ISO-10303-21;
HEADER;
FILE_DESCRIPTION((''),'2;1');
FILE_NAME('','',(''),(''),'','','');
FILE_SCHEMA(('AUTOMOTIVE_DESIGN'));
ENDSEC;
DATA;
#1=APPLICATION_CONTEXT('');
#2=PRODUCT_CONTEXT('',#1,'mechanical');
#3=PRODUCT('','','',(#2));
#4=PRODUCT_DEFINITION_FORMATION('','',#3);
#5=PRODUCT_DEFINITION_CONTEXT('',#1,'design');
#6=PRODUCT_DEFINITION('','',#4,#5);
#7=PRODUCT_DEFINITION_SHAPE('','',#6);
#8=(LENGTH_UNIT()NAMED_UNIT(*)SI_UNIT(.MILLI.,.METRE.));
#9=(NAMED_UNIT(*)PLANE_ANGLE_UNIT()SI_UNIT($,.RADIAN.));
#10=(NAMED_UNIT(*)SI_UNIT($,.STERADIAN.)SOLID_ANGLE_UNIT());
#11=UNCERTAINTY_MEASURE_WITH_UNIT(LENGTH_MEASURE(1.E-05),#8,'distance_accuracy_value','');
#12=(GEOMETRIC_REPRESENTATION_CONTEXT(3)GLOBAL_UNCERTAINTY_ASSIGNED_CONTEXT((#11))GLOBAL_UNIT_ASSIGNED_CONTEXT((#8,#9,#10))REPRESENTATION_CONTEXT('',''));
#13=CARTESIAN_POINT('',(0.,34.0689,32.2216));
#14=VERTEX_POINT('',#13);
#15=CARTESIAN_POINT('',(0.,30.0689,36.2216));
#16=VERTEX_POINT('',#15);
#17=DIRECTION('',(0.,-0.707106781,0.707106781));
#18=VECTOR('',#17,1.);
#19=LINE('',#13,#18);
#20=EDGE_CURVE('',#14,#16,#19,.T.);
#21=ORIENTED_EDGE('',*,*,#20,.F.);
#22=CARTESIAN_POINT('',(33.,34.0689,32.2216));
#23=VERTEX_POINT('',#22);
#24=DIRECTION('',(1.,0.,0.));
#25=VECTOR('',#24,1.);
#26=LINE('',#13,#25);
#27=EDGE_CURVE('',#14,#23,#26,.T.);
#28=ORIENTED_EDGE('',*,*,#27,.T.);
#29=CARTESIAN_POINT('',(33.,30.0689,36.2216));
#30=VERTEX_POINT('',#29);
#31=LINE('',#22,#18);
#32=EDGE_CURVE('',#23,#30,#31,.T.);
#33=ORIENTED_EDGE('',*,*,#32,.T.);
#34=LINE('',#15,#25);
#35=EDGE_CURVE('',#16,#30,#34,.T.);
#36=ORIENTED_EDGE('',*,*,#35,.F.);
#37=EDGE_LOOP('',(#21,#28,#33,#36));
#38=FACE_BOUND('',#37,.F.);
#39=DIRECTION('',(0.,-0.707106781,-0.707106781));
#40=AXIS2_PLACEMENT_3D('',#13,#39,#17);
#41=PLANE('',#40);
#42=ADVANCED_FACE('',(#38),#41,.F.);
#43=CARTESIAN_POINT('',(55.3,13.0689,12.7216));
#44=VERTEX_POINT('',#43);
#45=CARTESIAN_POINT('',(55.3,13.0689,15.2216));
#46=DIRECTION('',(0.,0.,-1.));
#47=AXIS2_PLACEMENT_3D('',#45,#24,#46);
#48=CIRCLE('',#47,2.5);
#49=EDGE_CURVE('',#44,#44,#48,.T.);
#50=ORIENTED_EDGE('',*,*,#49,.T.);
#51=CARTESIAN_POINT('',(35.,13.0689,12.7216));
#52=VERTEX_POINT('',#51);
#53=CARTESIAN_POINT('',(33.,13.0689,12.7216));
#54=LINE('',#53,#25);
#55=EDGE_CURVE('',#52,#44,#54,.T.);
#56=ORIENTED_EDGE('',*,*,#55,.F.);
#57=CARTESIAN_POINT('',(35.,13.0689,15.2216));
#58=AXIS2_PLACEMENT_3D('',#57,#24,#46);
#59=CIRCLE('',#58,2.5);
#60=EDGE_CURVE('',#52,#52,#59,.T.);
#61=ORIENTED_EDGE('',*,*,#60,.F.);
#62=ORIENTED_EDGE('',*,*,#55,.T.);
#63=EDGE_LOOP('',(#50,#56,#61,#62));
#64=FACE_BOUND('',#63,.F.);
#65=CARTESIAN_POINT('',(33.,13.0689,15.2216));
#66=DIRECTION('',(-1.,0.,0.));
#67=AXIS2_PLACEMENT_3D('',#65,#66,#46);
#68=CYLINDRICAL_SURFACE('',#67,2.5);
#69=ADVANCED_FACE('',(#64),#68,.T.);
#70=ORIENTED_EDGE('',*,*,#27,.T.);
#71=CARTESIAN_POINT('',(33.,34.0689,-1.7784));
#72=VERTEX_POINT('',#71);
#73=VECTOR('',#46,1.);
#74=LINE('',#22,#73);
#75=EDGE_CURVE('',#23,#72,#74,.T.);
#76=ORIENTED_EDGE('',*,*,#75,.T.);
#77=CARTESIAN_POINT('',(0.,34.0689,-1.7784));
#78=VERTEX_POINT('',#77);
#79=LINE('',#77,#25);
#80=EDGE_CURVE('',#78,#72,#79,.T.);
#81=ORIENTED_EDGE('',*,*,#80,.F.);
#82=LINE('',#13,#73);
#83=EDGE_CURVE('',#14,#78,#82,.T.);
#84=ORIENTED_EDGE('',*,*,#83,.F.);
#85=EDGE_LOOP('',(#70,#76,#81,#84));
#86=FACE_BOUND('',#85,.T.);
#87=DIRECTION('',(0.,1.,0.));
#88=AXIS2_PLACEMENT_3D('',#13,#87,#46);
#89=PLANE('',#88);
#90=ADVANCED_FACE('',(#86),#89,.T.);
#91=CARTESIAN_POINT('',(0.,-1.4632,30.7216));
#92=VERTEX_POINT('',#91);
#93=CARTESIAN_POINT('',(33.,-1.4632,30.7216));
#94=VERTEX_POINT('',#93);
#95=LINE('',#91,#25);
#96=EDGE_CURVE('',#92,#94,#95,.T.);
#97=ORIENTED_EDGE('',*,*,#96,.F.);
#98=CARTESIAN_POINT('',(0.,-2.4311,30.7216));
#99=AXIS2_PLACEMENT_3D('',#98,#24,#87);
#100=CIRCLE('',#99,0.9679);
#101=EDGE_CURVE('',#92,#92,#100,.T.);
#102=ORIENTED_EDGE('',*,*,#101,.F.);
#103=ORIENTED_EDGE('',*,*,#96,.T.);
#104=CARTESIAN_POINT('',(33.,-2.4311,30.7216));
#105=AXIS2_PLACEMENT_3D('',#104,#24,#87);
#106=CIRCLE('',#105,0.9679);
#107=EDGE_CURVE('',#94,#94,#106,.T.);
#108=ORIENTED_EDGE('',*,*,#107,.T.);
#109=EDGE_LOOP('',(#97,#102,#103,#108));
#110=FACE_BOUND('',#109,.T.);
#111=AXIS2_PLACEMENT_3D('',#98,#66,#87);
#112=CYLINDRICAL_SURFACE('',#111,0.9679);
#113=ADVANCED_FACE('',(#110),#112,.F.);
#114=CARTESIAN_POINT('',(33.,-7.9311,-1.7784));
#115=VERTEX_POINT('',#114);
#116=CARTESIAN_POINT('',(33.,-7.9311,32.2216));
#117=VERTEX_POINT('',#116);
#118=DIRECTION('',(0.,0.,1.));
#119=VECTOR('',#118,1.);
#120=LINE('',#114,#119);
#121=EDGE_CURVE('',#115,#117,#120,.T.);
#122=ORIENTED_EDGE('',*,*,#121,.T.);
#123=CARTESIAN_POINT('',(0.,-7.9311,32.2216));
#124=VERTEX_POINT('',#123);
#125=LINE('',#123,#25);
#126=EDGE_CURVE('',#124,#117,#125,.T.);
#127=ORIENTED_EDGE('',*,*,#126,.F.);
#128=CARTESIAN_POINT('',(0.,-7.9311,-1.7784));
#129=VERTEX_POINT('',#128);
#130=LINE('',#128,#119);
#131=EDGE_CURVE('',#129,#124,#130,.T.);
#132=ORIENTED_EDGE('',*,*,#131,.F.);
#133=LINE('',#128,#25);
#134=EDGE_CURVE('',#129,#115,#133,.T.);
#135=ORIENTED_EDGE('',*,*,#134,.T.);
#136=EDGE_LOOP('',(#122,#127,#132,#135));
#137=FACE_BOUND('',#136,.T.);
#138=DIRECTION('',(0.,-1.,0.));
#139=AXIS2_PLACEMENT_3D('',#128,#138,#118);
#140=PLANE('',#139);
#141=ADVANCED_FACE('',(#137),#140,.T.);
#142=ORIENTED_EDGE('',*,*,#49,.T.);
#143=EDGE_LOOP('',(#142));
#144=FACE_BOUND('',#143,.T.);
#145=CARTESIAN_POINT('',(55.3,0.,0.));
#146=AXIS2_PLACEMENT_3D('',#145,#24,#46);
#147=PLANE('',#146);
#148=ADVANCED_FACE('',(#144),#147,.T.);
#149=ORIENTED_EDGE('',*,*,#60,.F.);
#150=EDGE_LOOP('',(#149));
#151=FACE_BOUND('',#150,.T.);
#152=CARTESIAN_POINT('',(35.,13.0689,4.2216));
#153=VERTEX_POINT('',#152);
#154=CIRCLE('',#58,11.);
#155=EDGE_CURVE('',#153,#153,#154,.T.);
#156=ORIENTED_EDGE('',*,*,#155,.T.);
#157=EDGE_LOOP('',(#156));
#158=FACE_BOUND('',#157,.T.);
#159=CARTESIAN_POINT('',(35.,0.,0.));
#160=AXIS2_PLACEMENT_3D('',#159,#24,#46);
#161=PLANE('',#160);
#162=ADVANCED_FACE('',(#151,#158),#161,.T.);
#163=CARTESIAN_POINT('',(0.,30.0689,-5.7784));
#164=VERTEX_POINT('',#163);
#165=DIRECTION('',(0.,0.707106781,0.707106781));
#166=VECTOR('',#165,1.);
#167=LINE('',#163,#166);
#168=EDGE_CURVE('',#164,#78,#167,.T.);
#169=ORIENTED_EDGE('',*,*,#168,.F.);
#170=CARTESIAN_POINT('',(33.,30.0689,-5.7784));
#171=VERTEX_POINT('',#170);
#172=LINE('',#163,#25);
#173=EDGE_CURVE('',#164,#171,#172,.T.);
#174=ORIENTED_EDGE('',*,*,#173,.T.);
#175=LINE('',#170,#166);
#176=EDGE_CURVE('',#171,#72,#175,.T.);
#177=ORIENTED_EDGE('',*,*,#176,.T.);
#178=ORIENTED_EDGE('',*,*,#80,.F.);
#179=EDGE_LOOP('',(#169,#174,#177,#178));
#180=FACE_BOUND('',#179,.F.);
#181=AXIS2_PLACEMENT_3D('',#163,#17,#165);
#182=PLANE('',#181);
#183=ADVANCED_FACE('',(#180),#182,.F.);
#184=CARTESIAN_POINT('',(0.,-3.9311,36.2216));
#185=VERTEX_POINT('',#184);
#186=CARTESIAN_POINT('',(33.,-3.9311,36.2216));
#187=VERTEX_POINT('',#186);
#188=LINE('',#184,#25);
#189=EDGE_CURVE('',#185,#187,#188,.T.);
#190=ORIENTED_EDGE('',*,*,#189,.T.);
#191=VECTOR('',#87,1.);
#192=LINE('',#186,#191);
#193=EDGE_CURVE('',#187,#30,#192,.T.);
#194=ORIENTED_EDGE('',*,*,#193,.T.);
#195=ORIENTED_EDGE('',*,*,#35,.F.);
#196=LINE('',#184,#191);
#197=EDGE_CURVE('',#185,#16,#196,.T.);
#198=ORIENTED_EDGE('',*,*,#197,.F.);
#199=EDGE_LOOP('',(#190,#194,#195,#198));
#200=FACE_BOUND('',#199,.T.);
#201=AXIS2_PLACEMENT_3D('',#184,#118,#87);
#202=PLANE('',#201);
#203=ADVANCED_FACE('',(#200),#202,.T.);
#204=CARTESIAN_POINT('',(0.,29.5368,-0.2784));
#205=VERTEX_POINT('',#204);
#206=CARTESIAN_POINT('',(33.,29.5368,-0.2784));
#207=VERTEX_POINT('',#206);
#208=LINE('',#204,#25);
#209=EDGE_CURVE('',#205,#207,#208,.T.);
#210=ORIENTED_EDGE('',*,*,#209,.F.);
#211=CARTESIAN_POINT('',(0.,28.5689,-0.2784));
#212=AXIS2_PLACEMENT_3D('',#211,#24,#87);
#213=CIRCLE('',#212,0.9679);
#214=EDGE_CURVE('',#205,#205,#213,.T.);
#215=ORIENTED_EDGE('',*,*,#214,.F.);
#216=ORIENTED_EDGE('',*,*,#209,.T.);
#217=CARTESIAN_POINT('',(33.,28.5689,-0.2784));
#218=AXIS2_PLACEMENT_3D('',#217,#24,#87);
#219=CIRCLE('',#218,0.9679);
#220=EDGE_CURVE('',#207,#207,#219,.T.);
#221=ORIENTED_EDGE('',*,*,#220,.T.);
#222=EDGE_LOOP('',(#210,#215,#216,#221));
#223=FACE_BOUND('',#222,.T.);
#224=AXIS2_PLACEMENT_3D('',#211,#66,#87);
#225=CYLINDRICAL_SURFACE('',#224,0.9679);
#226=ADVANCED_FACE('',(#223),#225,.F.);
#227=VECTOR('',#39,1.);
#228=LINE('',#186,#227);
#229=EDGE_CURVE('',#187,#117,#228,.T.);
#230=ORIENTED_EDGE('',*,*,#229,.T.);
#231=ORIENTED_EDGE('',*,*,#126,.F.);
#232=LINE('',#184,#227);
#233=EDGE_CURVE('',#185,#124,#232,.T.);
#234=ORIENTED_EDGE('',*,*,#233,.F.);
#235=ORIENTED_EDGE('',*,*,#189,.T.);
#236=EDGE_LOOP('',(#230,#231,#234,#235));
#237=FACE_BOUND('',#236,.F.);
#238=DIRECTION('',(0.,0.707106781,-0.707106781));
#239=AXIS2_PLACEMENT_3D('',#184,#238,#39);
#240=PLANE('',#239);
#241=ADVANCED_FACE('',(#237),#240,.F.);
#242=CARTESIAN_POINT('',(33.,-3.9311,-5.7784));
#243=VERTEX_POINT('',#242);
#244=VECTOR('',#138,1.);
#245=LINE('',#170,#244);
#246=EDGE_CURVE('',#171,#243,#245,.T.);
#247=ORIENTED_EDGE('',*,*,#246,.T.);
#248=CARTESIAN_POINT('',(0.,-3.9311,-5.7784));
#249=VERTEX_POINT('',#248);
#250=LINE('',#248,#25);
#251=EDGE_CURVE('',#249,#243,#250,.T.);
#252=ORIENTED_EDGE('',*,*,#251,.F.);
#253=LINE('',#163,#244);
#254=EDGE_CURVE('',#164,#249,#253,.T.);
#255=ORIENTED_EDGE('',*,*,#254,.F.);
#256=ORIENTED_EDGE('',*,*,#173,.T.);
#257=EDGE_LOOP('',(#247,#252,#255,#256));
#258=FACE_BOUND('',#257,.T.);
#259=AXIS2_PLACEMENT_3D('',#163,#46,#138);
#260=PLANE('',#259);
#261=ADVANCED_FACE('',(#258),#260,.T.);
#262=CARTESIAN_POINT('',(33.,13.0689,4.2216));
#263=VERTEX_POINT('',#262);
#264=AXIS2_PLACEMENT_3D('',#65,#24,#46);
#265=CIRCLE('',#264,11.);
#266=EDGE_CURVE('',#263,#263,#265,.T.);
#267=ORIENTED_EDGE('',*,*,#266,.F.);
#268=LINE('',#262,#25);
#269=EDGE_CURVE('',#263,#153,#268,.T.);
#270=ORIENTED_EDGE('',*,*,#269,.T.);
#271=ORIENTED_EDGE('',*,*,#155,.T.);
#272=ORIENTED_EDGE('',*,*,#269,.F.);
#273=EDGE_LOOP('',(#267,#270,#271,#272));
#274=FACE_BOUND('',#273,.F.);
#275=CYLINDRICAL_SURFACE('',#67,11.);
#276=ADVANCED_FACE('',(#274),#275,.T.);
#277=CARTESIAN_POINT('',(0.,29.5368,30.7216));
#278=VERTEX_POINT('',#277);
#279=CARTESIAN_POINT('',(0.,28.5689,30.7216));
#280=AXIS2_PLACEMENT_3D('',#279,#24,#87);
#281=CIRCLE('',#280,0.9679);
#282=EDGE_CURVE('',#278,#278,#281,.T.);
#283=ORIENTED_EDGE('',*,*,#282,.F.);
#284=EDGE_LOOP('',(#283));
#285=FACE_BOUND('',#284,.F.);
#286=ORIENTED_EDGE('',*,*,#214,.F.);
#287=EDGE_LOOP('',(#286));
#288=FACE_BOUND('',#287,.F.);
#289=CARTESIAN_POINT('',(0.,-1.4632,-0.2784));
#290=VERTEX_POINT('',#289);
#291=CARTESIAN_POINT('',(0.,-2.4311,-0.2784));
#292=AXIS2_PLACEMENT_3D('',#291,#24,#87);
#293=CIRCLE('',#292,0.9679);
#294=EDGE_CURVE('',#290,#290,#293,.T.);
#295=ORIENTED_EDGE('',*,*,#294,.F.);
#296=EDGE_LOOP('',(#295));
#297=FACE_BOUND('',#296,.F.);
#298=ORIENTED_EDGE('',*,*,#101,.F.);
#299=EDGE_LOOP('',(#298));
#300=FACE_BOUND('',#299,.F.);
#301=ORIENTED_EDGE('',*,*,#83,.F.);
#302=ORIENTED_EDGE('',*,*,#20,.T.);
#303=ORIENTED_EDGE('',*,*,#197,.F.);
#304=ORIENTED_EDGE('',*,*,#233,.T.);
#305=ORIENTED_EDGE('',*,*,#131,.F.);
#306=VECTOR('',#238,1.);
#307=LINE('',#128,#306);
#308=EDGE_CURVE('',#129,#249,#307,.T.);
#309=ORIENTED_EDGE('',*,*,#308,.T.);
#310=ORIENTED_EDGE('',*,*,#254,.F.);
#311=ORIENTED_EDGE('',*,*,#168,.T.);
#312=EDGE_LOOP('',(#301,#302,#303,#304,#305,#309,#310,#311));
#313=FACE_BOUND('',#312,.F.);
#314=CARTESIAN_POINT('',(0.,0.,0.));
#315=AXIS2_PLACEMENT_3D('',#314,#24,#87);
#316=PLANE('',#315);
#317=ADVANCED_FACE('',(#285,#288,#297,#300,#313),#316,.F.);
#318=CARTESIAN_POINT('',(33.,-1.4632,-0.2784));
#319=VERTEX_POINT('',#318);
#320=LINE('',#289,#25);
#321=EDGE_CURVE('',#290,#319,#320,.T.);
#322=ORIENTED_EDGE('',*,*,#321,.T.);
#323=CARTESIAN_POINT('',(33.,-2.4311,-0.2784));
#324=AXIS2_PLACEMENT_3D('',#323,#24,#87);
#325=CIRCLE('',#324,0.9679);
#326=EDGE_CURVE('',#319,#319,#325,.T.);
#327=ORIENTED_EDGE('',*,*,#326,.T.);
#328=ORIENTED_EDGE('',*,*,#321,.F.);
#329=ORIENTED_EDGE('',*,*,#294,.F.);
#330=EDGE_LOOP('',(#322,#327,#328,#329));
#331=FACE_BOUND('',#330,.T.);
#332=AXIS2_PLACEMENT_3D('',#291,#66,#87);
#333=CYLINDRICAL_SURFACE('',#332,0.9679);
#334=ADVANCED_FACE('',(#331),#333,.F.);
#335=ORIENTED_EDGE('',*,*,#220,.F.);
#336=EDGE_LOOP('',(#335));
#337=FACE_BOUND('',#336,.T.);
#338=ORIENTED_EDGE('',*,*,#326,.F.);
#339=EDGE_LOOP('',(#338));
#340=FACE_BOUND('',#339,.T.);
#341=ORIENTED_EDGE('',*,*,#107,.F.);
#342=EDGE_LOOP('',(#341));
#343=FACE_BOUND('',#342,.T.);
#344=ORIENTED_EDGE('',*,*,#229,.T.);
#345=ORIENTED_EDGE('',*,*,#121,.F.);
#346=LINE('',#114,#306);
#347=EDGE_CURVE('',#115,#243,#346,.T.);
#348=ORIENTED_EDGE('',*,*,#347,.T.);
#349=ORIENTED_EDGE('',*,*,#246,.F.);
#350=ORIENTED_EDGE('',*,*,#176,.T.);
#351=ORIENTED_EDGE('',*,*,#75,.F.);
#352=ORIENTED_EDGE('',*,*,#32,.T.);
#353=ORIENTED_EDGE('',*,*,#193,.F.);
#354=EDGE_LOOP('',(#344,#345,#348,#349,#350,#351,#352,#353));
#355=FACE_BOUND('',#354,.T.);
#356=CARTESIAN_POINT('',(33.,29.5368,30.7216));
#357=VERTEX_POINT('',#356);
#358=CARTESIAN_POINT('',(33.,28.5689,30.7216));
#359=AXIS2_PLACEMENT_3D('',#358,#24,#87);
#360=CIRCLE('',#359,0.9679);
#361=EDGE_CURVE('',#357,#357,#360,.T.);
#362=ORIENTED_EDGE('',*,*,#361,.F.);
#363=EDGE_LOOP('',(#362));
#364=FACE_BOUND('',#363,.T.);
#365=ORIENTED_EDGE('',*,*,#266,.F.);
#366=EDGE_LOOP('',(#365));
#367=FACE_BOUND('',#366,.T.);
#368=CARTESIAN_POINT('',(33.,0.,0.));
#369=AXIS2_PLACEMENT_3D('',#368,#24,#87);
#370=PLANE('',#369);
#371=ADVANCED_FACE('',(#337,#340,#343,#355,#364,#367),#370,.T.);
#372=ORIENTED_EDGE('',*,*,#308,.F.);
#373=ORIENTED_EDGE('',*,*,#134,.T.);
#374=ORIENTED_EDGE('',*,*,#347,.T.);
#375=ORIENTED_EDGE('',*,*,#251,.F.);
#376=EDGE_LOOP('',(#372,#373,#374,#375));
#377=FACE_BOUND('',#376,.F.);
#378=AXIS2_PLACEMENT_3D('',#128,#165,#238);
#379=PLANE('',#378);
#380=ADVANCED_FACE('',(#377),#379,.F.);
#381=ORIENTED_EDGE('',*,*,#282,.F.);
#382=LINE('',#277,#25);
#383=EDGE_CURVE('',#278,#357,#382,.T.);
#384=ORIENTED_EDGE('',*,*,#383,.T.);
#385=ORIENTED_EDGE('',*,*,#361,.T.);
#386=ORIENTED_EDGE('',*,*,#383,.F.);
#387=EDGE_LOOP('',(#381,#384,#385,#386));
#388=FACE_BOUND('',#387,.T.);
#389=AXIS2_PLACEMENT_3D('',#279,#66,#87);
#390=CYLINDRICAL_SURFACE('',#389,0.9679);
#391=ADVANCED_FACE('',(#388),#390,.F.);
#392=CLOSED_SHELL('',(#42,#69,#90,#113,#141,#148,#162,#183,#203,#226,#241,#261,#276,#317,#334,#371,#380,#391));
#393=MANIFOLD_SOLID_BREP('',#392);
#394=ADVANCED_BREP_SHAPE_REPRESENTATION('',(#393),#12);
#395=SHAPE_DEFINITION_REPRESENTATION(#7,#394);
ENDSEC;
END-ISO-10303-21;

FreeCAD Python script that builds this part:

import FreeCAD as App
import Part
import Sketcher
from FreeCAD import Vector
Q = App.Units.Quantity


def add_polygon(sketch, points):
    """Adds a closed chain of lines whose ends are joined by coincident constraints."""
    first, n = sketch.GeometryCount, len(points)
    for a, b in zip(points, points[1:] + points[:1]):
        sketch.addGeometry(Part.LineSegment(App.Vector(*a, 0), App.Vector(*b, 0)), False)
    for i in range(n):
        sketch.addConstraint(Sketcher.Constraint("Coincident", first + i, 2, first + (i + 1) % n, 1))

doc = App.newDocument("Part")
body = doc.addObject("PartDesign::Body", "Body")

sketch1 = body.newObject("Sketcher::SketchObject", "Sketch")
sketch1.AttachmentSupport = (doc.getObject("YZ_Plane"), [""])
sketch1.MapMode = "FlatFace"
add_polygon(sketch1, [(30.1, 36.2), (-3.9, 36.2), (-7.9, 32.2), (-7.9, -1.8), (-3.9, -5.8), (30.1, -5.8), (34.1, -1.8), (34.1, 32.2)])
sketch1.addGeometry(Part.Circle(Vector(-2.4, -0.3, 0), Vector(0, 0, 1), 1), False)
sketch1.addGeometry(Part.Circle(Vector(28.6, -0.3, 0), Vector(0, 0, 1), 1), False)
sketch1.addGeometry(Part.Circle(Vector(-2.4, 30.7, 0), Vector(0, 0, 1), 1), False)
sketch1.addGeometry(Part.Circle(Vector(28.6, 30.7, 0), Vector(0, 0, 1), 1), False)
sketch1.addConstraint(Sketcher.Constraint("Horizontal", 0))
sketch1.addConstraint(Sketcher.Constraint("Vertical", 2))
sketch1.addConstraint(Sketcher.Constraint("Horizontal", 4))
sketch1.addConstraint(Sketcher.Constraint("Vertical", 6))
sketch1.addConstraint(Sketcher.Constraint("Equal", 8, 9))
sketch1.addConstraint(Sketcher.Constraint("Equal", 9, 10))
sketch1.addConstraint(Sketcher.Constraint("Equal", 10, 11))
sketch1.addConstraint(Sketcher.Constraint("Perpendicular", 1, 3))
sketch1.addConstraint(Sketcher.Constraint("Perpendicular", 3, 5))
sketch1.addConstraint(Sketcher.Constraint("Perpendicular", 5, 7))
sketch1.addConstraint(Sketcher.Constraint("Horizontal", 8, 3, 9, 3))
sketch1.addConstraint(Sketcher.Constraint("Horizontal", 10, 3, 11, 3))
sketch1.addConstraint(Sketcher.Constraint("Horizontal", 2, 2, 5, 2))
sketch1.addConstraint(Sketcher.Constraint("Horizontal", 1, 2, 6, 2))
sketch1.addConstraint(Sketcher.Constraint("Vertical", 8, 3, 10, 3))
sketch1.addConstraint(Sketcher.Constraint("Vertical", 9, 3, 11, 3))
sketch1.addConstraint(Sketcher.Constraint("Vertical", 0, 2, 3, 2))
sketch1.addConstraint(Sketcher.Constraint("Vertical", 4, 2, 7, 2))
sketch1.addConstraint(Sketcher.Constraint("Equal", 4, 2))
sketch1.addConstraint(Sketcher.Constraint("DistanceX", 8, 3, 9, 3, Q("31 mm")))
sketch1.addConstraint(Sketcher.Constraint("DistanceY", 8, 3, 10, 3, Q("31 mm")))
sketch1.addConstraint(Sketcher.Constraint("DistanceX", 1, 2, 0, 2, Q("4 mm")))
sketch1.addConstraint(Sketcher.Constraint("DistanceY", 10, 3, 0, 2, Q("5.5 mm")))
sketch1.addConstraint(Sketcher.Constraint("DistanceX", 1, 2, 10, 3, Q("5.5 mm")))
sketch1.addConstraint(Sketcher.Constraint("DistanceY", 3, 2, 8, 3, Q("5.5 mm")))
sketch1.addConstraint(Sketcher.Constraint("Diameter", 8, Q("1.9358 mm")))
sketch1.addConstraint(Sketcher.Constraint("DistanceX", 8, 3, -1, 1, Q("2.431 mm")))
sketch1.addConstraint(Sketcher.Constraint("DistanceY", 8, 3, -1, 1, Q("0.2784 mm")))
pad1 = body.newObject("PartDesign::Pad", "Pad")
pad1.Profile = sketch1
pad1.Length = 33

sketch2 = body.newObject("Sketcher::SketchObject", "Sketch001")
sketch2.AttachmentSupport = (doc.getObject("YZ_Plane"), [""])
sketch2.MapMode = "FlatFace"
sketch2.AttachmentOffset = App.Placement(Vector(0, 0, 33), App.Rotation())
sketch2.addGeometry(Part.Circle(Vector(13.1, 15.2, 0), Vector(0, 0, 1), 2.5), False)
sketch2.addConstraint(Sketcher.Constraint("Diameter", 0, Q("5 mm")))
sketch2.addConstraint(Sketcher.Constraint("DistanceX", -1, 1, 0, 3, Q("13.069 mm")))
sketch2.addConstraint(Sketcher.Constraint("DistanceY", -1, 1, 0, 3, Q("15.2216 mm")))
pad2 = body.newObject("PartDesign::Pad", "Pad001")
pad2.Profile = sketch2
pad2.Length = 22.3

sketch3 = body.newObject("Sketcher::SketchObject", "Sketch002")
sketch3.AttachmentSupport = (doc.getObject("YZ_Plane"), [""])
sketch3.MapMode = "FlatFace"
sketch3.AttachmentOffset = App.Placement(Vector(0, 0, 33), App.Rotation())
sketch3.addGeometry(Part.Circle(Vector(13.1, 15.2, 0), Vector(0, 0, 1), 11), False)
sketch3.addGeometry(Part.Circle(Vector(13.1, 15.2, 0), Vector(0, 0, 1), 2.5), False)
sketch3.addConstraint(Sketcher.Constraint("Coincident", 1, 3, 0, 3))
sketch3.addConstraint(Sketcher.Constraint("Diameter", 0, Q("22 mm")))
sketch3.addConstraint(Sketcher.Constraint("Diameter", 1, Q("5 mm")))
sketch3.addConstraint(Sketcher.Constraint("DistanceX", -1, 1, 0, 3, Q("13.069 mm")))
sketch3.addConstraint(Sketcher.Constraint("DistanceY", -1, 1, 0, 3, Q("15.2216 mm")))
pad3 = body.newObject("PartDesign::Pad", "Pad002")
pad3.Profile = sketch3
pad3.Length = 2

doc.recompute()
